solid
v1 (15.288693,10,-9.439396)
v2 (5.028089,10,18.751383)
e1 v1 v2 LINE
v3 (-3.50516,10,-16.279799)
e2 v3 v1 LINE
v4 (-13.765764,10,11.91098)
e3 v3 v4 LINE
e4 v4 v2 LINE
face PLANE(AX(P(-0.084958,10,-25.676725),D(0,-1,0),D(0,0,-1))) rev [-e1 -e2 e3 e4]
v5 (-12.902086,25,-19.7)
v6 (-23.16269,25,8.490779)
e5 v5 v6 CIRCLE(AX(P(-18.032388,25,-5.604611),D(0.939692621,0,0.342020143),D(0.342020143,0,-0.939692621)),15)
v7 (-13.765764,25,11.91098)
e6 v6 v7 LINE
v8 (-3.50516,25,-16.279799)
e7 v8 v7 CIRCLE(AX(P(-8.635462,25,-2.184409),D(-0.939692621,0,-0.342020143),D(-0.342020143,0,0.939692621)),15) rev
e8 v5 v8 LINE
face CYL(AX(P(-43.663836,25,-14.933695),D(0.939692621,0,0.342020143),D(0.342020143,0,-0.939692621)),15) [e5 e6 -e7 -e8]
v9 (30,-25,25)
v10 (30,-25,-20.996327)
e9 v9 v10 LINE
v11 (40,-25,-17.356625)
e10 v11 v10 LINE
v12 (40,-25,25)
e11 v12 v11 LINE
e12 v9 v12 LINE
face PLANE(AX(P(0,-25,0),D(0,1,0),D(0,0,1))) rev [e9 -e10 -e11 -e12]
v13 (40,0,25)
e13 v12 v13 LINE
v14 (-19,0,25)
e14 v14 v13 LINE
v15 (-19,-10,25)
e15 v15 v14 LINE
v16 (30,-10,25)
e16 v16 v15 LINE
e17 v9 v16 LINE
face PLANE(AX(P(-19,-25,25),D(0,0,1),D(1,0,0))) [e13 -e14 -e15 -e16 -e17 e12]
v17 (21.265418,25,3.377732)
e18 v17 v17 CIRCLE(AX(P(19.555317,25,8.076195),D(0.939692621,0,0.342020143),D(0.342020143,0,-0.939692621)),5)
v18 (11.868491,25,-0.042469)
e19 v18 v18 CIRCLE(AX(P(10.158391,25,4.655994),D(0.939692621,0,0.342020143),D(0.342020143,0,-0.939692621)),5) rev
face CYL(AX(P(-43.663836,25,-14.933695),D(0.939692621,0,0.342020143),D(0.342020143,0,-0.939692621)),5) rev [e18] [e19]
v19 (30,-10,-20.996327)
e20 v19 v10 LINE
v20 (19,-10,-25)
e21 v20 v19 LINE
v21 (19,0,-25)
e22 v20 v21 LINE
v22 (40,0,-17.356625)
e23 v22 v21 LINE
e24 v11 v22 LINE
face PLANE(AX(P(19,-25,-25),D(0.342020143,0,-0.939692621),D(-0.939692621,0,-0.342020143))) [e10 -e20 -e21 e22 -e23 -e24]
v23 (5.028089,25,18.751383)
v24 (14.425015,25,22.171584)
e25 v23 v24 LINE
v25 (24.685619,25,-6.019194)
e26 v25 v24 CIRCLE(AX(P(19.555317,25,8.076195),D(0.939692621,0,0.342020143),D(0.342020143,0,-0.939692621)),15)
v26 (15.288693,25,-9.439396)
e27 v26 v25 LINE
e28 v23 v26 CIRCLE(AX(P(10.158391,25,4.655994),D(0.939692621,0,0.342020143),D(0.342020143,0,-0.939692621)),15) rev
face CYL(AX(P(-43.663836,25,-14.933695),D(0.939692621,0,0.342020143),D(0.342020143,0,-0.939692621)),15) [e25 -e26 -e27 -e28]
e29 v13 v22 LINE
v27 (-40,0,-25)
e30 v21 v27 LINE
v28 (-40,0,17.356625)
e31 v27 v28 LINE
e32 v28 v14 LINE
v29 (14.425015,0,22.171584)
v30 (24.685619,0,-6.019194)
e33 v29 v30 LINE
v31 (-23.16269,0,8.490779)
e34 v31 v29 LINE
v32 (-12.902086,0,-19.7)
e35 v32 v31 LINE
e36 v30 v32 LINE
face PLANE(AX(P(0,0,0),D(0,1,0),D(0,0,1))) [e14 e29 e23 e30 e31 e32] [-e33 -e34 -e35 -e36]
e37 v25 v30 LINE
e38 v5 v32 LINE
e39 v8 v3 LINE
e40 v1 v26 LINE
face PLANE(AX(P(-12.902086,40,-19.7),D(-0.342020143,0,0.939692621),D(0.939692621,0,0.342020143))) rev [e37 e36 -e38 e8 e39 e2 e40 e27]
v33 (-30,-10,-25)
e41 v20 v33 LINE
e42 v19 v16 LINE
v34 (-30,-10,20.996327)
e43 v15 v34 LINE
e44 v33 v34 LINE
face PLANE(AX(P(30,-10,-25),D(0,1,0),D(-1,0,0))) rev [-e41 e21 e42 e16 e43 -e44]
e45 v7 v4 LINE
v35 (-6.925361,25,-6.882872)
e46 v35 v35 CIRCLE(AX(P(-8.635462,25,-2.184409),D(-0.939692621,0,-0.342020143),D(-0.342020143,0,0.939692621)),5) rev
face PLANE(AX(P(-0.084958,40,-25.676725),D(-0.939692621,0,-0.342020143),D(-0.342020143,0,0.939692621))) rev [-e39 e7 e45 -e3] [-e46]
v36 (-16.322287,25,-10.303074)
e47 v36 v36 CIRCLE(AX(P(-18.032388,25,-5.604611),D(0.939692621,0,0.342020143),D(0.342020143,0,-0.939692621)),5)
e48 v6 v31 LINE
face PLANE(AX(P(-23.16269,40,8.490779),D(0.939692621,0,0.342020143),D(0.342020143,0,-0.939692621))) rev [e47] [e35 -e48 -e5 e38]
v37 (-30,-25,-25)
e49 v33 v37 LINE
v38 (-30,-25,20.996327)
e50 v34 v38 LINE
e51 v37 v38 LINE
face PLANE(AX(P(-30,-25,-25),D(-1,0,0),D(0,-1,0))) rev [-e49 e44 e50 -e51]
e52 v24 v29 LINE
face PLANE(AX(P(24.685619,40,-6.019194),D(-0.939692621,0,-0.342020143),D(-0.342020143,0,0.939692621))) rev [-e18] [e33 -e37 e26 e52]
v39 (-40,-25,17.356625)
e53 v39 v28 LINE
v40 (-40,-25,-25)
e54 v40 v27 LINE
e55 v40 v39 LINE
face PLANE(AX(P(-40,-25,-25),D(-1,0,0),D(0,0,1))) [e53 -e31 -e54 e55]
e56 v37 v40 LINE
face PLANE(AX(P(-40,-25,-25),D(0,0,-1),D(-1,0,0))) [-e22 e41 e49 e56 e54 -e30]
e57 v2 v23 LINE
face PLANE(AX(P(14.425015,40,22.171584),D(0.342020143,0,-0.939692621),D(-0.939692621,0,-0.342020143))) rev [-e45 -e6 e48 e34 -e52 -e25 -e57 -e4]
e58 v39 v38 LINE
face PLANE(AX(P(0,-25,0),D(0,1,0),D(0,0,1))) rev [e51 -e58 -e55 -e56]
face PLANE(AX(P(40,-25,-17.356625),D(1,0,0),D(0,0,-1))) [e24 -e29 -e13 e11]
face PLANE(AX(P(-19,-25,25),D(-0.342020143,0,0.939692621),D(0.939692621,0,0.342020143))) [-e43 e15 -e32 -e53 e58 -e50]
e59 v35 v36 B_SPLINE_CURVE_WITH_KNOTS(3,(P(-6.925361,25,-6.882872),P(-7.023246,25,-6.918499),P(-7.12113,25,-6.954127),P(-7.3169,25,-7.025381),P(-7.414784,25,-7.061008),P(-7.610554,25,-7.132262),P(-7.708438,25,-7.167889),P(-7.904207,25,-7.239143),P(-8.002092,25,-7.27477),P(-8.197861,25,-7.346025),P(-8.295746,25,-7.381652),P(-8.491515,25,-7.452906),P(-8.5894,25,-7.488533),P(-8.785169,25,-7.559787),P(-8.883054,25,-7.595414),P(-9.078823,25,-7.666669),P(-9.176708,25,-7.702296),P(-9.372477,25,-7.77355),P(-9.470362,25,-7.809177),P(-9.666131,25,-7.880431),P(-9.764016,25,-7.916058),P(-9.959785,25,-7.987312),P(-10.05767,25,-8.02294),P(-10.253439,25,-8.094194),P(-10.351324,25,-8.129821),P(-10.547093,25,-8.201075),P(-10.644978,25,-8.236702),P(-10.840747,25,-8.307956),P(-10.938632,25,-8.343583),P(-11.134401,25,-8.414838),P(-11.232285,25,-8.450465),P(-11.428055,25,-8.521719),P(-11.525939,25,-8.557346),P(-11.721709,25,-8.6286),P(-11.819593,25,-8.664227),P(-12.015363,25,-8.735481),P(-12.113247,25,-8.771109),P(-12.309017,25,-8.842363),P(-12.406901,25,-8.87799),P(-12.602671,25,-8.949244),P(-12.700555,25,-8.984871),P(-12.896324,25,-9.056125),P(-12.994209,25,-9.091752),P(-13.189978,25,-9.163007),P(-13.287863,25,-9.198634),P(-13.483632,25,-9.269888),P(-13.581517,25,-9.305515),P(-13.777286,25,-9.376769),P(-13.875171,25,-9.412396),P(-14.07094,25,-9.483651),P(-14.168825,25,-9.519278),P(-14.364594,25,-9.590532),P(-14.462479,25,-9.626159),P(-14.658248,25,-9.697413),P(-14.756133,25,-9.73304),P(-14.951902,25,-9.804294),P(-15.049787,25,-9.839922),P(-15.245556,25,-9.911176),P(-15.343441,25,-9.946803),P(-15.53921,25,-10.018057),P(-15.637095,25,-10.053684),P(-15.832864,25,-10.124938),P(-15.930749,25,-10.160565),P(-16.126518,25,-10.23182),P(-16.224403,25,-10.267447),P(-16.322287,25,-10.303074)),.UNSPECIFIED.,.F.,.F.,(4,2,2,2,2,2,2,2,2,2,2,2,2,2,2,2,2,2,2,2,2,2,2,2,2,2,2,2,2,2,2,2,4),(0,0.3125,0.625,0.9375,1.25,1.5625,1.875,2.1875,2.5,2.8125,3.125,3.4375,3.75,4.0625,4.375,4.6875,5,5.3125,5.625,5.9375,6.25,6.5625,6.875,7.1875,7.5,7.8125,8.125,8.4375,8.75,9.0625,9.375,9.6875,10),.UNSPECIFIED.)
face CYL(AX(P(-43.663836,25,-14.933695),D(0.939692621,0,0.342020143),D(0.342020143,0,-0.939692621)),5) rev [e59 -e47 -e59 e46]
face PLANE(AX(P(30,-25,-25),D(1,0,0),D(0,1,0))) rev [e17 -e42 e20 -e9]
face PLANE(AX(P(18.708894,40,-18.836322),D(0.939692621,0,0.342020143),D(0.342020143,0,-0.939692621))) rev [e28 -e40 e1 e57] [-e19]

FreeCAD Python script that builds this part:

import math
import FreeCAD as App
import Part
import Sketcher

V = App.Vector
Q = App.Units.Quantity

doc = App.newDocument("Part")
body = doc.addObject("PartDesign::Body", "Body")

sketch1 = doc.addObject("Sketcher::SketchObject", "Sketch")
body.addObject(sketch1)
sketch1.AttachmentSupport = (doc.XZ_Plane, [""])
sketch1.MapMode = "FlatFace"
sketch1.addGeometry(Part.LineSegment(V(19, -25, 0), V(-40, -25, 0)), False)
sketch1.addGeometry(Part.LineSegment(V(-40, -25, 0), V(-40, 17, 0)), False)
sketch1.addGeometry(Part.LineSegment(V(-40, 17, 0), V(-19, 25, 0)), False)
sketch1.addGeometry(Part.LineSegment(V(-19, 25, 0), V(40, 25, 0)), False)
sketch1.addGeometry(Part.LineSegment(V(40, 25, 0), V(40, -17, 0)), False)
sketch1.addGeometry(Part.LineSegment(V(40, -17, 0), V(19, -25, 0)), False)
sketch1.addConstraint(Sketcher.Constraint("Coincident", 0, 2, 1, 1))
sketch1.addConstraint(Sketcher.Constraint("Coincident", 1, 2, 2, 1))
sketch1.addConstraint(Sketcher.Constraint("Coincident", 2, 2, 3, 1))
sketch1.addConstraint(Sketcher.Constraint("Coincident", 3, 2, 4, 1))
sketch1.addConstraint(Sketcher.Constraint("Coincident", 4, 2, 5, 1))
sketch1.addConstraint(Sketcher.Constraint("Coincident", 5, 2, 0, 1))
sketch1.addConstraint(Sketcher.Constraint("Horizontal", 0))
sketch1.addConstraint(Sketcher.Constraint("Vertical", 1))
sketch1.addConstraint(Sketcher.Constraint("Horizontal", 3))
sketch1.addConstraint(Sketcher.Constraint("Vertical", 4))
sketch1.addConstraint(Sketcher.Constraint("Symmetric", 0, 2, 3, 2, -1, 1))
sketch1.addConstraint(Sketcher.Constraint("Parallel", 2, 5))
sketch1.addConstraint(Sketcher.Constraint("Equal", 0, 3))
sketch1.addConstraint(Sketcher.Constraint("DistanceX", 0, 2, 0, 1, Q("59 mm")))
sketch1.addConstraint(Sketcher.Constraint("Angle", 2, Q("20 deg")))
sketch1.addConstraint(Sketcher.Constraint("DistanceX", 0, 2, -1, 1, Q("40 mm")))
sketch1.addConstraint(Sketcher.Constraint("DistanceY", 0, 2, -1, 1, Q("25 mm")))
pad1 = doc.addObject("PartDesign::Pad", "Pad")
body.addObject(pad1)
pad1.Profile = sketch1
pad1.Length = 25

sketch2 = doc.addObject("Sketcher::SketchObject", "Sketch001")
body.addObject(sketch2)
sketch2.AttachmentSupport = (doc.XY_Plane, [""])
sketch2.MapMode = "FlatFace"
sketch2.AttachmentOffset = App.Placement(V(0, 0, 25), App.Rotation())
sketch2.addGeometry(Part.LineSegment(V(-30, -10, 0), V(-30, -25, 0)), False)
sketch2.addGeometry(Part.LineSegment(V(-30, -25, 0), V(30, -25, 0)), False)
sketch2.addGeometry(Part.LineSegment(V(30, -25, 0), V(30, -10, 0)), False)
sketch2.addGeometry(Part.LineSegment(V(30, -10, 0), V(-30, -10, 0)), False)
sketch2.addConstraint(Sketcher.Constraint("Coincident", 0, 2, 1, 1))
sketch2.addConstraint(Sketcher.Constraint("Coincident", 1, 2, 2, 1))
sketch2.addConstraint(Sketcher.Constraint("Coincident", 2, 2, 3, 1))
sketch2.addConstraint(Sketcher.Constraint("Coincident", 3, 2, 0, 1))
sketch2.addConstraint(Sketcher.Constraint("Vertical", 0))
sketch2.addConstraint(Sketcher.Constraint("Horizontal", 1))
sketch2.addConstraint(Sketcher.Constraint("Vertical", 2))
sketch2.addConstraint(Sketcher.Constraint("Horizontal", 3))
sketch2.addConstraint(Sketcher.Constraint("DistanceX", 1, 1, 1, 2, Q("60 mm")))
sketch2.addConstraint(Sketcher.Constraint("DistanceY", 0, 2, 0, 1, Q("15 mm")))
sketch2.addConstraint(Sketcher.Constraint("DistanceX", 0, 2, -1, 1, Q("30 mm")))
sketch2.addConstraint(Sketcher.Constraint("DistanceY", 0, 2, -1, 1, Q("25 mm")))
pocket1 = doc.addObject("PartDesign::Pocket", "Pocket")
body.addObject(pocket1)
pocket1.Profile = sketch2
pocket1.Type = "ThroughAll"

sketch3 = doc.addObject("Sketcher::SketchObject", "Sketch002")
body.addObject(sketch3)
sketch3.AttachmentSupport = (doc.XZ_Plane, [""])
sketch3.MapMode = "FlatFace"
sketch3.addGeometry(Part.LineSegment(V(25, -6, 0), V(-13, -20, 0)), False)
sketch3.addGeometry(Part.LineSegment(V(-13, -20, 0), V(-23, 8, 0)), False)
sketch3.addGeometry(Part.LineSegment(V(-23, 8, 0), V(14, 22, 0)), False)
sketch3.addGeometry(Part.LineSegment(V(14, 22, 0), V(25, -6, 0)), False)
sketch3.addConstraint(Sketcher.Constraint("Coincident", 0, 2, 1, 1))
sketch3.addConstraint(Sketcher.Constraint("Coincident", 1, 2, 2, 1))
sketch3.addConstraint(Sketcher.Constraint("Coincident", 2, 2, 3, 1))
sketch3.addConstraint(Sketcher.Constraint("Coincident", 3, 2, 0, 1))
sketch3.addConstraint(Sketcher.Constraint("Perpendicular", 0, 1))
sketch3.addConstraint(Sketcher.Constraint("Perpendicular", 1, 2))
sketch3.addConstraint(Sketcher.Constraint("Perpendicular", 2, 3))
sketch3.addConstraint(Sketcher.Constraint("Angle", 0, Q("-160 deg")))
sketch3.addConstraint(Sketcher.Constraint("Distance", 0, Q("40 mm")))
sketch3.addConstraint(Sketcher.Constraint("Distance", 1, Q("30 mm")))
sketch3.addConstraint(Sketcher.Constraint("DistanceY", 0, 2, -1, 1, Q("19.7 mm")))
sketch3.addConstraint(Sketcher.Constraint("DistanceX", 1, 2, -1, 1, Q("23.16269 mm")))
pad2 = doc.addObject("PartDesign::Pad", "Pad001")
body.addObject(pad2)
pad2.Profile = sketch3
pad2.Length = 40
pad2.Reversed = True

sketch4 = doc.addObject("Sketcher::SketchObject", "Sketch003")
body.addObject(sketch4)
sketch4.Placement = App.Placement(V(19.863418, 0, 7.229693), App.Rotation(V(0.342020143, 0, -0.939692621), V(0, 1, 0), V(0.939692621, 0, 0.342020143), "ZXY"))
sketch4.addGeometry(Part.LineSegment(V(-16, 40, 0), V(-16, 25, 0)), False)
sketch4.addGeometry(Part.ArcOfCircle(Part.Circle(V(-1, 25, 0), V(0, 0, 1), 15), math.radians(90), math.radians(180)), False)
sketch4.addGeometry(Part.LineSegment(V(-1, 40, 0), V(-16, 40, 0)), False)
sketch4.addGeometry(Part.LineSegment(V(14, 40, 0), V(-1, 40, 0)), False)
sketch4.addGeometry(Part.ArcOfCircle(Part.Circle(V(-1, 25, 0), V(0, 0, 1), 15), math.radians(0), math.radians(90)), False)
sketch4.addGeometry(Part.LineSegment(V(14, 25, 0), V(14, 40, 0)), False)
sketch4.addGeometry(Part.Circle(V(-1, 25, 0), V(0, 0, 1), 5), False)
sketch4.addConstraint(Sketcher.Constraint("Tangent", 0, 2, 1, 2))
sketch4.addConstraint(Sketcher.Constraint("Tangent", 1, 1, 2, 1))
sketch4.addConstraint(Sketcher.Constraint("Coincident", 2, 2, 0, 1))
sketch4.addConstraint(Sketcher.Constraint("Tangent", 3, 2, 4, 2))
sketch4.addConstraint(Sketcher.Constraint("Tangent", 4, 1, 5, 1))
sketch4.addConstraint(Sketcher.Constraint("Coincident", 5, 2, 3, 1))
sketch4.addConstraint(Sketcher.Constraint("Vertical", 0))
sketch4.addConstraint(Sketcher.Constraint("Horizontal", 2))
sketch4.addConstraint(Sketcher.Constraint("Horizontal", 3))
sketch4.addConstraint(Sketcher.Constraint("Vertical", 5))
sketch4.addConstraint(Sketcher.Constraint("Coincident", 4, 3, 1, 3))
sketch4.addConstraint(Sketcher.Constraint("Coincident", 6, 3, 1, 3))
sketch4.addConstraint(Sketcher.Constraint("Equal", 1, 4))
sketch4.addConstraint(Sketcher.Constraint("Diameter", 6, Q("10 mm")))
sketch4.addConstraint(Sketcher.Constraint("Radius", 1, Q("15 mm")))
sketch4.addConstraint(Sketcher.Constraint("DistanceY", -1, 1, 1, 3, Q("25 mm")))
sketch4.addConstraint(Sketcher.Constraint("DistanceX", 1, 3, -1, 1, Q("0.900829 mm")))
pocket2 = doc.addObject("PartDesign::Pocket", "Pocket001")
body.addObject(pocket2)
pocket2.Profile = sketch4
pocket2.Type = "ThroughAll"

sketch5 = doc.addObject("Sketcher::SketchObject", "Sketch004")
body.addObject(sketch5)
sketch5.Placement = App.Placement(V(-5.438404, 0, 14.941891), App.Rotation(V(0.939692621, 0, 0.342020143), V(0, 1, 0), V(-0.342020143, 0, 0.939692621), "ZXY"))
sketch5.addGeometry(Part.LineSegment(V(-9, 40, 0), V(-9, 10, 0)), False)
sketch5.addGeometry(Part.LineSegment(V(-9, 10, 0), V(11, 10, 0)), False)
sketch5.addGeometry(Part.LineSegment(V(11, 10, 0), V(11, 40, 0)), False)
sketch5.addGeometry(Part.LineSegment(V(11, 40, 0), V(-9, 40, 0)), False)
sketch5.addConstraint(Sketcher.Constraint("Coincident", 0, 2, 1, 1))
sketch5.addConstraint(Sketcher.Constraint("Coincident", 1, 2, 2, 1))
sketch5.addConstraint(Sketcher.Constraint("Coincident", 2, 2, 3, 1))
sketch5.addConstraint(Sketcher.Constraint("Coincident", 3, 2, 0, 1))
sketch5.addConstraint(Sketcher.Constraint("Vertical", 0))
sketch5.addConstraint(Sketcher.Constraint("Horizontal", 1))
sketch5.addConstraint(Sketcher.Constraint("Vertical", 2))
sketch5.addConstraint(Sketcher.Constraint("Horizontal", 3))
sketch5.addConstraint(Sketcher.Constraint("DistanceX", 1, 1, 1, 2, Q("20 mm")))
sketch5.addConstraint(Sketcher.Constraint("DistanceY", 0, 2, 0, 1, Q("30 mm")))
sketch5.addConstraint(Sketcher.Constraint("DistanceY", -1, 1, 0, 2, Q("10 mm")))
sketch5.addConstraint(Sketcher.Constraint("DistanceX", 0, 2, -1, 1, Q("8.861792 mm")))
pocket3 = doc.addObject("PartDesign::Pocket", "Pocket002")
body.addObject(pocket3)
pocket3.Profile = sketch5
pocket3.Length = 40

doc.recompute()
